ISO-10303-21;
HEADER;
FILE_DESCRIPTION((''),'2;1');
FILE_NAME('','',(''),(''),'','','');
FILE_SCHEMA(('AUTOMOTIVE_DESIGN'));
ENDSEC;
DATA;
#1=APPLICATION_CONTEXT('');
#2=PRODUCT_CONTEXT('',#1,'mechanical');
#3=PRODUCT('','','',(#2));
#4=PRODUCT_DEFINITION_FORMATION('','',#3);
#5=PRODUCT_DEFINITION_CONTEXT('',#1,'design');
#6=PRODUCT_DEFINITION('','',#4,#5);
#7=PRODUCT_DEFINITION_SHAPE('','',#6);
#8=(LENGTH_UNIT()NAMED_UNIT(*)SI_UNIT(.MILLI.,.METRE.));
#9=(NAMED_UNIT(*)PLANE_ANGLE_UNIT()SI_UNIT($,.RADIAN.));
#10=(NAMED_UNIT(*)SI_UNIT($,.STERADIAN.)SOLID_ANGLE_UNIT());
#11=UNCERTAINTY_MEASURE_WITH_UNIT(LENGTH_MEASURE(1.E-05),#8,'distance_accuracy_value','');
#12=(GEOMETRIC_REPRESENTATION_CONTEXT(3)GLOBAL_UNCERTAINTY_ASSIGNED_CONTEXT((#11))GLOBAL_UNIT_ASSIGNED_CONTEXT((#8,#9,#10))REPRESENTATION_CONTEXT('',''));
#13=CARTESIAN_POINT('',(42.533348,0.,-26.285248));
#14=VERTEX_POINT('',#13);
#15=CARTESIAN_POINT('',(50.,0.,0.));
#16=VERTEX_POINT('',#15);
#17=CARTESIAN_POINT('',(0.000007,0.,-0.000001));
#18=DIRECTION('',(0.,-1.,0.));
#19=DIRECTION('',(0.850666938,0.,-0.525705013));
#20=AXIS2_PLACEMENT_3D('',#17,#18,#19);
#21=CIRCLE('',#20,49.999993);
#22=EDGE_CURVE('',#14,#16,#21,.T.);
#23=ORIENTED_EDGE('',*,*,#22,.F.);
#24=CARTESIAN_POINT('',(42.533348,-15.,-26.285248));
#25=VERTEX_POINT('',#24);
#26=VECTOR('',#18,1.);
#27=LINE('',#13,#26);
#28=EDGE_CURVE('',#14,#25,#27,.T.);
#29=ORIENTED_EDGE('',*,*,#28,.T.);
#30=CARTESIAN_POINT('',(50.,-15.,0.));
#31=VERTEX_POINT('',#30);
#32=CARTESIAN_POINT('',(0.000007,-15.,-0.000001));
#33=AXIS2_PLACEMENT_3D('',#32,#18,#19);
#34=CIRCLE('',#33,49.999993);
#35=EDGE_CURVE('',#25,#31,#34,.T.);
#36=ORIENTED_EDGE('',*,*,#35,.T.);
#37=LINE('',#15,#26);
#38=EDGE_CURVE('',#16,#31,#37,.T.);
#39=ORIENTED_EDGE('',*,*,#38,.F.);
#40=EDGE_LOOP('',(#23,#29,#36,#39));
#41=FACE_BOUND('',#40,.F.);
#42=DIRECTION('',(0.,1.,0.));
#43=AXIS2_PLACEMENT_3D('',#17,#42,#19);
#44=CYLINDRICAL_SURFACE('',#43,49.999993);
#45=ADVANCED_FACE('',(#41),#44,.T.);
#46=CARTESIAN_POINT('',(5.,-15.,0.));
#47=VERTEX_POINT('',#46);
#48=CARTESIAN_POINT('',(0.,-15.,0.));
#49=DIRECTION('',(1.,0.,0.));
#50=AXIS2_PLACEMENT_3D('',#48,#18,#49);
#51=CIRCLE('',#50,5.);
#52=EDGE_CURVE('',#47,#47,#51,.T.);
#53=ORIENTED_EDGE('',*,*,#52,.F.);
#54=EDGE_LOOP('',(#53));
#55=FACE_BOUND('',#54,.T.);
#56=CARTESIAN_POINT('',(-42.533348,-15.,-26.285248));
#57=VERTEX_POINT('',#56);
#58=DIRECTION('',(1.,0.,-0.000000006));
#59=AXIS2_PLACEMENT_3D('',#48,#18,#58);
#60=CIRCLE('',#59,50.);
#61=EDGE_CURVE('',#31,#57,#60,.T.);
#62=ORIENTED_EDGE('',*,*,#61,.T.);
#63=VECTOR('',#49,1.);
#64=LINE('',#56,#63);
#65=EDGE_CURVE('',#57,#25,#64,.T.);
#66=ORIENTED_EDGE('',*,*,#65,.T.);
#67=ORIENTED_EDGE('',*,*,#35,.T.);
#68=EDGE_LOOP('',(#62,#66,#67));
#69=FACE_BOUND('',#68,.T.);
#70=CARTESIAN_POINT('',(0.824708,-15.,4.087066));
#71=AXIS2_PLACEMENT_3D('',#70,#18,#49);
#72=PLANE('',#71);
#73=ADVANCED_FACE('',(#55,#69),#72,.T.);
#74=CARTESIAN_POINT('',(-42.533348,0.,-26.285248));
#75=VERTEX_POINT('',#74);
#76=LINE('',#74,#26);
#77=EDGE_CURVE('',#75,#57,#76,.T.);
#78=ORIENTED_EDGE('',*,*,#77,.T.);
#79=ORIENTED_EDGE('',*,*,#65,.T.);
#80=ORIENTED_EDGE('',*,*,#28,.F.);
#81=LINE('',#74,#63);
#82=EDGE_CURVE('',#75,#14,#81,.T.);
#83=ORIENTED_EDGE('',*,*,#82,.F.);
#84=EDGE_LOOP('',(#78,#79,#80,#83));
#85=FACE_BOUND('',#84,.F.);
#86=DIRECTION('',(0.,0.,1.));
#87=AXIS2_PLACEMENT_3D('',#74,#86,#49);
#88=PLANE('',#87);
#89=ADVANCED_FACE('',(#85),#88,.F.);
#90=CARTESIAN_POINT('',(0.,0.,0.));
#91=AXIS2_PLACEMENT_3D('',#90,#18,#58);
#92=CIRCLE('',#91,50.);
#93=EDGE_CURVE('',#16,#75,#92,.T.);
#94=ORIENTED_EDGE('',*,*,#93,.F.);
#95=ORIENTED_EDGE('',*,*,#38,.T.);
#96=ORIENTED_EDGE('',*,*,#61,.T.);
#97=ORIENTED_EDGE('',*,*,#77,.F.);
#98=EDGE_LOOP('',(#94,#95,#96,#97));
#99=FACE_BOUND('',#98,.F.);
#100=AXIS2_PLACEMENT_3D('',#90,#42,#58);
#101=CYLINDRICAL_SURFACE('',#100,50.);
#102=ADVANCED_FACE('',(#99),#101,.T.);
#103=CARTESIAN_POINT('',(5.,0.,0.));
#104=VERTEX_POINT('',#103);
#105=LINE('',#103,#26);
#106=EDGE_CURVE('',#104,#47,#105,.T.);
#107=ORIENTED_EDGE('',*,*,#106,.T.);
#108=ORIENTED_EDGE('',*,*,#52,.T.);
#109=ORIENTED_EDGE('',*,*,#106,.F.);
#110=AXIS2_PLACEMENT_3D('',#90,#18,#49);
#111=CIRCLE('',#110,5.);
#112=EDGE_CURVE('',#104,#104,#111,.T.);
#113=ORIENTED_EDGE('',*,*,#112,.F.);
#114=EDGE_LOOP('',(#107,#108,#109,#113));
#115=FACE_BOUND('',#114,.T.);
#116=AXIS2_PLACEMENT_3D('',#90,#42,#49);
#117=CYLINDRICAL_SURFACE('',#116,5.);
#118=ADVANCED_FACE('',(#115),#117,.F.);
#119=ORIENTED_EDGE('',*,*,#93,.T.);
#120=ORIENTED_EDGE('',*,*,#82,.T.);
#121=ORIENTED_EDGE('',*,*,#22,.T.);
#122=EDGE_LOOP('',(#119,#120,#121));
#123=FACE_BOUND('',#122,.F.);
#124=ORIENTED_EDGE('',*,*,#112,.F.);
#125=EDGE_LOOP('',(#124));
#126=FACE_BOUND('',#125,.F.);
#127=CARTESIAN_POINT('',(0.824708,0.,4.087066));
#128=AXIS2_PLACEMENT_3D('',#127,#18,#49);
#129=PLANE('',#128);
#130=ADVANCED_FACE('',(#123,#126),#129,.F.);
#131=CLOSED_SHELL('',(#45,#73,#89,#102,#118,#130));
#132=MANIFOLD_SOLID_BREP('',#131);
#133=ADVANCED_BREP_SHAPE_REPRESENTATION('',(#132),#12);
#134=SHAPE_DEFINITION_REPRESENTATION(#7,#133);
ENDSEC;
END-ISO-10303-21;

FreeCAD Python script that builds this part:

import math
import FreeCAD as App
import Part
import Sketcher
from FreeCAD import Vector

doc = App.newDocument("Part")
body = doc.addObject("PartDesign::Body", "Body")

sketch1 = body.newObject("Sketcher::SketchObject", "Sketch")
sketch1.AttachmentSupport = (doc.getObject("XZ_Plane"), [""])
sketch1.MapMode = "FlatFace"
sketch1.addGeometry(Part.ArcOfCircle(Part.Circle(Vector(0, 0, 0), Vector(0, 0, 1), 50), math.radians(-32), math.radians(0)), False)
sketch1.addGeometry(Part.ArcOfCircle(Part.Circle(Vector(0, 0, 0), Vector(0, 0, 1), 50), math.radians(0), math.radians(212)), False)
sketch1.addGeometry(Part.LineSegment(Vector(-43, -26, 0), Vector(43, -26, 0)), False)
sketch1.addGeometry(Part.Circle(Vector(0, 0, 0), Vector(0, 0, 1), 5), False)
sketch1.addConstraint(Sketcher.Constraint("Tangent", 0, 2, 1, 1))
sketch1.addConstraint(Sketcher.Constraint("Coincident", 1, 2, 2, 1))
sketch1.addConstraint(Sketcher.Constraint("Coincident", 2, 2, 0, 1))
sketch1.addConstraint(Sketcher.Constraint("Horizontal", 2))
sketch1.addConstraint(Sketcher.Constraint("Coincident", 0, 3, -1, 1))
sketch1.addConstraint(Sketcher.Constraint("Coincident", 3, 3, -1, 1))
sketch1.addConstraint(Sketcher.Constraint("PointOnObject", 0, 2, -1))
sketch1.addConstraint(Sketcher.Constraint("Diameter", 3, 10.0))
sketch1.addConstraint(Sketcher.Constraint("Radius", 1, 50.0))
sketch1.addConstraint(Sketcher.Constraint("DistanceX", -1, 1, 0, 2, 50.0))
sketch1.addConstraint(Sketcher.Constraint("DistanceX", 2, 1, 2, 2, 85.066696))
pad1 = body.newObject("PartDesign::Pad", "Pad")
pad1.Profile = sketch1
pad1.Length = 15

doc.recompute()
